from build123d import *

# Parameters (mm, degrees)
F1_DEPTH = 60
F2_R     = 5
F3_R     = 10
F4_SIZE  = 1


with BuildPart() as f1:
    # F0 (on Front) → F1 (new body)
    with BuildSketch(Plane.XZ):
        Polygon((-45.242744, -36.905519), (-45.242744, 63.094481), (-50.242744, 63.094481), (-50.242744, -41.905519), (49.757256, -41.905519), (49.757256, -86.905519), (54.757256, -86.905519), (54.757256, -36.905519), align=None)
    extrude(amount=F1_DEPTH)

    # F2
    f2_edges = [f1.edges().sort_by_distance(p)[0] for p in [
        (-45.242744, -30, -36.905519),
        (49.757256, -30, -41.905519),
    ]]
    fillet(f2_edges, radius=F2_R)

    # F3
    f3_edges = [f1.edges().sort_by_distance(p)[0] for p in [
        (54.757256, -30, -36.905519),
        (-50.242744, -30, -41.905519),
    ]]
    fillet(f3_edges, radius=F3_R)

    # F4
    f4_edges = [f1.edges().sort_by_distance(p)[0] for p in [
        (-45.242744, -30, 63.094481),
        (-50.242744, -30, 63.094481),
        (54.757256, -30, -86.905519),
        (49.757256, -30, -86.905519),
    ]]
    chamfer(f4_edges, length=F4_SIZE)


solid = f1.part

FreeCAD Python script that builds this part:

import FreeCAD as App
import Part
import Sketcher
from FreeCAD import Vector
Q = App.Units.Quantity


def edges_at(feature, points):
    """Names of the edges that pass closest to the given points."""
    edges = feature.Shape.Edges
    near = lambda p: min(range(len(edges)), key=lambda i: edges[i].distToShape(Part.Vertex(*p))[0])
    return sorted({f"Edge{near(p) + 1}" for p in points})


def add_polygon(sketch, points):
    """Adds a closed chain of lines whose ends are joined by coincident constraints."""
    first, n = sketch.GeometryCount, len(points)
    for a, b in zip(points, points[1:] + points[:1]):
        sketch.addGeometry(Part.LineSegment(App.Vector(*a, 0), App.Vector(*b, 0)), False)
    for i in range(n):
        sketch.addConstraint(Sketcher.Constraint("Coincident", first + i, 2, first + (i + 1) % n, 1))

doc = App.newDocument("Part")
body = doc.addObject("PartDesign::Body", "Body")

# Sketch on XZ plane
sketch1 = doc.addObject("Sketcher::SketchObject", "Sketch")
body.addObject(sketch1)
sketch1.AttachmentSupport = (doc.XZ_Plane, [""])
sketch1.MapMode = "FlatFace"
add_polygon(sketch1, [(-45, -37), (-45, 63), (-50, 63), (-50, -42), (50, -42), (50, -87), (55, -87), (55, -37)])  # lines 0-7
sketch1.addConstraint([
    Sketcher.Constraint("Vertical", 0),
    Sketcher.Constraint("Horizontal", 1),
    Sketcher.Constraint("Vertical", 2),
    Sketcher.Constraint("Horizontal", 3),
    Sketcher.Constraint("Vertical", 4),
    Sketcher.Constraint("Horizontal", 5),
    Sketcher.Constraint("Vertical", 6),
    Sketcher.Constraint("Horizontal", 7),
    Sketcher.Constraint("Equal", 1, 5),
    Sketcher.Constraint("Equal", 7, 0),
    Sketcher.Constraint("DistanceX", 1, 2, 1, 1, Q("5 mm")),
    Sketcher.Constraint("DistanceX", 3, 1, 3, 2, Q("100 mm")),
    Sketcher.Constraint("DistanceY", 2, 2, 2, 1, Q("105 mm")),
    Sketcher.Constraint("DistanceY", 4, 2, 4, 1, Q("45 mm")),
    Sketcher.Constraint("DistanceY", -1, 1, 0, 2, Q("63.094481 mm")),
    Sketcher.Constraint("DistanceX", 0, 2, -1, 1, Q("45.242744 mm")),
])
pad1 = doc.addObject("PartDesign::Pad", "Pad")
body.addObject(pad1)
pad1.Profile = sketch1
pad1.Length = 60
doc.recompute()

fillet = doc.addObject("PartDesign::Fillet", "Fillet")
body.addObject(fillet)
fillet.Base = (pad1, edges_at(pad1, [(-45.243, -30, -36.906), (49.757, -30, -41.906)]))
fillet.Radius = 5
doc.recompute()

fillet2 = doc.addObject("PartDesign::Fillet", "Fillet001")
body.addObject(fillet2)
fillet2.Base = (fillet, edges_at(fillet, [(54.757, -30, -36.906), (-50.243, -30, -41.906)]))
fillet2.Radius = 10
doc.recompute()

chamfer = doc.addObject("PartDesign::Chamfer", "Chamfer")
body.addObject(chamfer)
chamfer.Base = (fillet2, edges_at(fillet2, [
    (-45.243, -30, 63.094),
    (-50.243, -30, 63.094),
    (54.757, -30, -86.906),
    (49.757, -30, -86.906),
]))
chamfer.Size = 1

doc.recompute()
